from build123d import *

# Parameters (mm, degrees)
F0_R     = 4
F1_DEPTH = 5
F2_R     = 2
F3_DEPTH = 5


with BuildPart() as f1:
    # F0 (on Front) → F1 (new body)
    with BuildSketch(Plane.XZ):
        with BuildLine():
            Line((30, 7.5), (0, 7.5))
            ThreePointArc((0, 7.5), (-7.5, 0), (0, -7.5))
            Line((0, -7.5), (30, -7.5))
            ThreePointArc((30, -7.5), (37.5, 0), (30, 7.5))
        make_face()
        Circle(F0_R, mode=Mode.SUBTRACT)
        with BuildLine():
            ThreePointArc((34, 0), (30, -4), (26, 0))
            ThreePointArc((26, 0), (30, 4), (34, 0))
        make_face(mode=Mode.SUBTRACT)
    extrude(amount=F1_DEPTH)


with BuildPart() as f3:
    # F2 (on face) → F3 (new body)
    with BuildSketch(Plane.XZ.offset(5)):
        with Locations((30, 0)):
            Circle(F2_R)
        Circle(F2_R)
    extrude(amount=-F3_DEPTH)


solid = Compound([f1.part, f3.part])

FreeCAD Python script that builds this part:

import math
import FreeCAD as App
import Part
import Sketcher
from FreeCAD import Vector
Q = App.Units.Quantity

doc = App.newDocument("Part")
body = doc.addObject("PartDesign::Body", "Body")

# Sketch on XZ plane
sketch1 = doc.addObject("Sketcher::SketchObject", "Sketch")
body.addObject(sketch1)
sketch1.AttachmentSupport = (doc.XZ_Plane, [""])
sketch1.MapMode = "FlatFace"
sketch1.addGeometry([
    Part.LineSegment(Vector(30, 7.5, 0), Vector(0, 7.5, 0)),  # 0
    Part.ArcOfCircle(Part.Circle(Vector(0, 0, 0), Vector(0, 0, 1), 7.5), math.radians(90), math.radians(270)),  # 1
    Part.LineSegment(Vector(0, -7.5, 0), Vector(30, -7.5, 0)),  # 2
    Part.ArcOfCircle(Part.Circle(Vector(30, 0, 0), Vector(0, 0, 1), 7.5), math.radians(-90), math.radians(90)),  # 3
    Part.Circle(Vector(0, 0, 0), Vector(0, 0, 1), 4),  # 4
    Part.Circle(Vector(30, 0, 0), Vector(0, 0, 1), 4),  # 5
], False)
sketch1.addConstraint([
    Sketcher.Constraint("Tangent", 0, 2, 1, 1),
    Sketcher.Constraint("Tangent", 1, 2, 2, 1),
    Sketcher.Constraint("Tangent", 2, 2, 3, 1),
    Sketcher.Constraint("Tangent", 3, 2, 0, 1),
    Sketcher.Constraint("Horizontal", 0),
    Sketcher.Constraint("Horizontal", 2),
    Sketcher.Constraint("Coincident", 1, 3, -1, 1),
    Sketcher.Constraint("Coincident", 4, 3, -1, 1),
    Sketcher.Constraint("Coincident", 5, 3, 3, 3),
    Sketcher.Constraint("Equal", 4, 5),
    Sketcher.Constraint("Diameter", 4, Q("8 mm")),
    Sketcher.Constraint("Radius", 1, Q("7.5 mm")),
    Sketcher.Constraint("DistanceX", 0, 2, 0, 1, Q("30 mm")),
])
pad1 = doc.addObject("PartDesign::Pad", "Pad")
body.addObject(pad1)
pad1.Profile = sketch1
pad1.Length = 5
body2 = doc.addObject("PartDesign::Body", "Body001")
body2.AllowCompound = True

# Sketch on XZ plane
sketch2 = doc.addObject("Sketcher::SketchObject", "Sketch001")
body2.addObject(sketch2)
sketch2.AttachmentSupport = (doc.getObject("XZ_Plane001"), [""])
sketch2.MapMode = "FlatFace"
sketch2.AttachmentOffset = App.Placement(Vector(0, 0, 5), App.Rotation())
sketch2.addGeometry([
    Part.Circle(Vector(30, 0, 0), Vector(0, 0, 1), 2),
    Part.Circle(Vector(0, 0, 0), Vector(0, 0, 1), 2),
], False)
sketch2.addConstraint([
    Sketcher.Constraint("Coincident", 1, 3, -1, 1),
    Sketcher.Constraint("Equal", 0, 1),
    Sketcher.Constraint("PointOnObject", 0, 3, -1),
    Sketcher.Constraint("Diameter", 0, Q("4 mm")),
    Sketcher.Constraint("DistanceX", -1, 1, 0, 3, Q("30 mm")),
])
pad2 = doc.addObject("PartDesign::Pad", "Pad001")
body2.addObject(pad2)
pad2.Profile = sketch2
pad2.Length = 5
pad2.Reversed = True

doc.recompute()
